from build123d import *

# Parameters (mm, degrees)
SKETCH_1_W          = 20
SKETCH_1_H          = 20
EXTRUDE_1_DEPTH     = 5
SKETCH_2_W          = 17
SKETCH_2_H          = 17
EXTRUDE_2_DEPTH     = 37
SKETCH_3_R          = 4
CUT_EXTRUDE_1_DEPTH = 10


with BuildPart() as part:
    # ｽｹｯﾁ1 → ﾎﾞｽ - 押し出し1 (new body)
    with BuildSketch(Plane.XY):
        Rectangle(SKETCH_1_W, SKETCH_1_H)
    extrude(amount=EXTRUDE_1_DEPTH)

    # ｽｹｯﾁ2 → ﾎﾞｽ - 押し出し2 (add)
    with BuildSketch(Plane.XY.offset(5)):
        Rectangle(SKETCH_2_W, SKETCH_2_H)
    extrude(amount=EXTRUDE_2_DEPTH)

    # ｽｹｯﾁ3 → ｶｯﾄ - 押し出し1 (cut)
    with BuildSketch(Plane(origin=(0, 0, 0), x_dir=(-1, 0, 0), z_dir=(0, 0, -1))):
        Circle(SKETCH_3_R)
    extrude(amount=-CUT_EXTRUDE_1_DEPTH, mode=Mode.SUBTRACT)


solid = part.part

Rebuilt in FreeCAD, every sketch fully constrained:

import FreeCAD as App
import Part
import Sketcher

doc = App.newDocument("Part")
body = doc.addObject("PartDesign::Body", "Body")

# Sketch on XY plane
sketch1 = doc.addObject("Sketcher::SketchObject", "Sketch")
body.addObject(sketch1)
sketch1.AttachmentSupport = (doc.XY_Plane, [""])
sketch1.MapMode = "FlatFace"
sketch1.addGeometry(Part.LineSegment(App.Vector(-10, 10, 0), App.Vector(-10, -10, 0)), False)
sketch1.addGeometry(Part.LineSegment(App.Vector(-10, -10, 0), App.Vector(10, -10, 0)), False)
sketch1.addGeometry(Part.LineSegment(App.Vector(10, -10, 0), App.Vector(10, 10, 0)), False)
sketch1.addGeometry(Part.LineSegment(App.Vector(10, 10, 0), App.Vector(-10, 10, 0)), False)
sketch1.addConstraint(Sketcher.Constraint("Coincident", 0, 2, 1, 1))
sketch1.addConstraint(Sketcher.Constraint("Coincident", 1, 2, 2, 1))
sketch1.addConstraint(Sketcher.Constraint("Coincident", 2, 2, 3, 1))
sketch1.addConstraint(Sketcher.Constraint("Coincident", 3, 2, 0, 1))
sketch1.addConstraint(Sketcher.Constraint("Vertical", 0))
sketch1.addConstraint(Sketcher.Constraint("Horizontal", 1))
sketch1.addConstraint(Sketcher.Constraint("Vertical", 2))
sketch1.addConstraint(Sketcher.Constraint("Horizontal", 3))
sketch1.addConstraint(Sketcher.Constraint("Symmetric", 0, 2, 2, 2, -1, 1))
sketch1.addConstraint(Sketcher.Constraint("Equal", 3, 0))
sketch1.addConstraint(Sketcher.Constraint("DistanceX", 1, 1, 1, 2, 20.0))
pad1 = doc.addObject("PartDesign::Pad", "Pad")
body.addObject(pad1)
pad1.Profile = sketch1
pad1.Length = 5

# Sketch on XY plane
sketch2 = doc.addObject("Sketcher::SketchObject", "Sketch001")
body.addObject(sketch2)
sketch2.AttachmentSupport = (doc.XY_Plane, [""])
sketch2.MapMode = "FlatFace"
sketch2.AttachmentOffset = App.Placement(App.Vector(0, 0, 5), App.Rotation())
sketch2.addGeometry(Part.LineSegment(App.Vector(-8, 8, 0), App.Vector(-8, -8, 0)), False)
sketch2.addGeometry(Part.LineSegment(App.Vector(-8, -8, 0), App.Vector(8, -8, 0)), False)
sketch2.addGeometry(Part.LineSegment(App.Vector(8, -8, 0), App.Vector(8, 8, 0)), False)
sketch2.addGeometry(Part.LineSegment(App.Vector(8, 8, 0), App.Vector(-8, 8, 0)), False)
sketch2.addConstraint(Sketcher.Constraint("Coincident", 0, 2, 1, 1))
sketch2.addConstraint(Sketcher.Constraint("Coincident", 1, 2, 2, 1))
sketch2.addConstraint(Sketcher.Constraint("Coincident", 2, 2, 3, 1))
sketch2.addConstraint(Sketcher.Constraint("Coincident", 3, 2, 0, 1))
sketch2.addConstraint(Sketcher.Constraint("Vertical", 0))
sketch2.addConstraint(Sketcher.Constraint("Horizontal", 1))
sketch2.addConstraint(Sketcher.Constraint("Vertical", 2))
sketch2.addConstraint(Sketcher.Constraint("Horizontal", 3))
sketch2.addConstraint(Sketcher.Constraint("Symmetric", 0, 2, 2, 2, -1, 1))
sketch2.addConstraint(Sketcher.Constraint("Equal", 3, 0))
sketch2.addConstraint(Sketcher.Constraint("DistanceX", 1, 1, 1, 2, 17.0))
pad2 = doc.addObject("PartDesign::Pad", "Pad001")
body.addObject(pad2)
pad2.Profile = sketch2
pad2.Length = 37

# Sketch on XY plane
sketch3 = doc.addObject("Sketcher::SketchObject", "Sketch002")
body.addObject(sketch3)
sketch3.AttachmentSupport = (doc.XY_Plane, [""])
sketch3.MapMode = "FlatFace"
sketch3.addGeometry(Part.Circle(App.Vector(0, 0, 0), App.Vector(0, 0, 1), 4), False)
sketch3.addConstraint(Sketcher.Constraint("Coincident", 0, 3, -1, 1))
sketch3.addConstraint(Sketcher.Constraint("Diameter", 0, 8.0))
pocket1 = doc.addObject("PartDesign::Pocket", "Pocket")
body.addObject(pocket1)
pocket1.Profile = sketch3
pocket1.Length = 10
pocket1.Reversed = True

doc.recompute()
